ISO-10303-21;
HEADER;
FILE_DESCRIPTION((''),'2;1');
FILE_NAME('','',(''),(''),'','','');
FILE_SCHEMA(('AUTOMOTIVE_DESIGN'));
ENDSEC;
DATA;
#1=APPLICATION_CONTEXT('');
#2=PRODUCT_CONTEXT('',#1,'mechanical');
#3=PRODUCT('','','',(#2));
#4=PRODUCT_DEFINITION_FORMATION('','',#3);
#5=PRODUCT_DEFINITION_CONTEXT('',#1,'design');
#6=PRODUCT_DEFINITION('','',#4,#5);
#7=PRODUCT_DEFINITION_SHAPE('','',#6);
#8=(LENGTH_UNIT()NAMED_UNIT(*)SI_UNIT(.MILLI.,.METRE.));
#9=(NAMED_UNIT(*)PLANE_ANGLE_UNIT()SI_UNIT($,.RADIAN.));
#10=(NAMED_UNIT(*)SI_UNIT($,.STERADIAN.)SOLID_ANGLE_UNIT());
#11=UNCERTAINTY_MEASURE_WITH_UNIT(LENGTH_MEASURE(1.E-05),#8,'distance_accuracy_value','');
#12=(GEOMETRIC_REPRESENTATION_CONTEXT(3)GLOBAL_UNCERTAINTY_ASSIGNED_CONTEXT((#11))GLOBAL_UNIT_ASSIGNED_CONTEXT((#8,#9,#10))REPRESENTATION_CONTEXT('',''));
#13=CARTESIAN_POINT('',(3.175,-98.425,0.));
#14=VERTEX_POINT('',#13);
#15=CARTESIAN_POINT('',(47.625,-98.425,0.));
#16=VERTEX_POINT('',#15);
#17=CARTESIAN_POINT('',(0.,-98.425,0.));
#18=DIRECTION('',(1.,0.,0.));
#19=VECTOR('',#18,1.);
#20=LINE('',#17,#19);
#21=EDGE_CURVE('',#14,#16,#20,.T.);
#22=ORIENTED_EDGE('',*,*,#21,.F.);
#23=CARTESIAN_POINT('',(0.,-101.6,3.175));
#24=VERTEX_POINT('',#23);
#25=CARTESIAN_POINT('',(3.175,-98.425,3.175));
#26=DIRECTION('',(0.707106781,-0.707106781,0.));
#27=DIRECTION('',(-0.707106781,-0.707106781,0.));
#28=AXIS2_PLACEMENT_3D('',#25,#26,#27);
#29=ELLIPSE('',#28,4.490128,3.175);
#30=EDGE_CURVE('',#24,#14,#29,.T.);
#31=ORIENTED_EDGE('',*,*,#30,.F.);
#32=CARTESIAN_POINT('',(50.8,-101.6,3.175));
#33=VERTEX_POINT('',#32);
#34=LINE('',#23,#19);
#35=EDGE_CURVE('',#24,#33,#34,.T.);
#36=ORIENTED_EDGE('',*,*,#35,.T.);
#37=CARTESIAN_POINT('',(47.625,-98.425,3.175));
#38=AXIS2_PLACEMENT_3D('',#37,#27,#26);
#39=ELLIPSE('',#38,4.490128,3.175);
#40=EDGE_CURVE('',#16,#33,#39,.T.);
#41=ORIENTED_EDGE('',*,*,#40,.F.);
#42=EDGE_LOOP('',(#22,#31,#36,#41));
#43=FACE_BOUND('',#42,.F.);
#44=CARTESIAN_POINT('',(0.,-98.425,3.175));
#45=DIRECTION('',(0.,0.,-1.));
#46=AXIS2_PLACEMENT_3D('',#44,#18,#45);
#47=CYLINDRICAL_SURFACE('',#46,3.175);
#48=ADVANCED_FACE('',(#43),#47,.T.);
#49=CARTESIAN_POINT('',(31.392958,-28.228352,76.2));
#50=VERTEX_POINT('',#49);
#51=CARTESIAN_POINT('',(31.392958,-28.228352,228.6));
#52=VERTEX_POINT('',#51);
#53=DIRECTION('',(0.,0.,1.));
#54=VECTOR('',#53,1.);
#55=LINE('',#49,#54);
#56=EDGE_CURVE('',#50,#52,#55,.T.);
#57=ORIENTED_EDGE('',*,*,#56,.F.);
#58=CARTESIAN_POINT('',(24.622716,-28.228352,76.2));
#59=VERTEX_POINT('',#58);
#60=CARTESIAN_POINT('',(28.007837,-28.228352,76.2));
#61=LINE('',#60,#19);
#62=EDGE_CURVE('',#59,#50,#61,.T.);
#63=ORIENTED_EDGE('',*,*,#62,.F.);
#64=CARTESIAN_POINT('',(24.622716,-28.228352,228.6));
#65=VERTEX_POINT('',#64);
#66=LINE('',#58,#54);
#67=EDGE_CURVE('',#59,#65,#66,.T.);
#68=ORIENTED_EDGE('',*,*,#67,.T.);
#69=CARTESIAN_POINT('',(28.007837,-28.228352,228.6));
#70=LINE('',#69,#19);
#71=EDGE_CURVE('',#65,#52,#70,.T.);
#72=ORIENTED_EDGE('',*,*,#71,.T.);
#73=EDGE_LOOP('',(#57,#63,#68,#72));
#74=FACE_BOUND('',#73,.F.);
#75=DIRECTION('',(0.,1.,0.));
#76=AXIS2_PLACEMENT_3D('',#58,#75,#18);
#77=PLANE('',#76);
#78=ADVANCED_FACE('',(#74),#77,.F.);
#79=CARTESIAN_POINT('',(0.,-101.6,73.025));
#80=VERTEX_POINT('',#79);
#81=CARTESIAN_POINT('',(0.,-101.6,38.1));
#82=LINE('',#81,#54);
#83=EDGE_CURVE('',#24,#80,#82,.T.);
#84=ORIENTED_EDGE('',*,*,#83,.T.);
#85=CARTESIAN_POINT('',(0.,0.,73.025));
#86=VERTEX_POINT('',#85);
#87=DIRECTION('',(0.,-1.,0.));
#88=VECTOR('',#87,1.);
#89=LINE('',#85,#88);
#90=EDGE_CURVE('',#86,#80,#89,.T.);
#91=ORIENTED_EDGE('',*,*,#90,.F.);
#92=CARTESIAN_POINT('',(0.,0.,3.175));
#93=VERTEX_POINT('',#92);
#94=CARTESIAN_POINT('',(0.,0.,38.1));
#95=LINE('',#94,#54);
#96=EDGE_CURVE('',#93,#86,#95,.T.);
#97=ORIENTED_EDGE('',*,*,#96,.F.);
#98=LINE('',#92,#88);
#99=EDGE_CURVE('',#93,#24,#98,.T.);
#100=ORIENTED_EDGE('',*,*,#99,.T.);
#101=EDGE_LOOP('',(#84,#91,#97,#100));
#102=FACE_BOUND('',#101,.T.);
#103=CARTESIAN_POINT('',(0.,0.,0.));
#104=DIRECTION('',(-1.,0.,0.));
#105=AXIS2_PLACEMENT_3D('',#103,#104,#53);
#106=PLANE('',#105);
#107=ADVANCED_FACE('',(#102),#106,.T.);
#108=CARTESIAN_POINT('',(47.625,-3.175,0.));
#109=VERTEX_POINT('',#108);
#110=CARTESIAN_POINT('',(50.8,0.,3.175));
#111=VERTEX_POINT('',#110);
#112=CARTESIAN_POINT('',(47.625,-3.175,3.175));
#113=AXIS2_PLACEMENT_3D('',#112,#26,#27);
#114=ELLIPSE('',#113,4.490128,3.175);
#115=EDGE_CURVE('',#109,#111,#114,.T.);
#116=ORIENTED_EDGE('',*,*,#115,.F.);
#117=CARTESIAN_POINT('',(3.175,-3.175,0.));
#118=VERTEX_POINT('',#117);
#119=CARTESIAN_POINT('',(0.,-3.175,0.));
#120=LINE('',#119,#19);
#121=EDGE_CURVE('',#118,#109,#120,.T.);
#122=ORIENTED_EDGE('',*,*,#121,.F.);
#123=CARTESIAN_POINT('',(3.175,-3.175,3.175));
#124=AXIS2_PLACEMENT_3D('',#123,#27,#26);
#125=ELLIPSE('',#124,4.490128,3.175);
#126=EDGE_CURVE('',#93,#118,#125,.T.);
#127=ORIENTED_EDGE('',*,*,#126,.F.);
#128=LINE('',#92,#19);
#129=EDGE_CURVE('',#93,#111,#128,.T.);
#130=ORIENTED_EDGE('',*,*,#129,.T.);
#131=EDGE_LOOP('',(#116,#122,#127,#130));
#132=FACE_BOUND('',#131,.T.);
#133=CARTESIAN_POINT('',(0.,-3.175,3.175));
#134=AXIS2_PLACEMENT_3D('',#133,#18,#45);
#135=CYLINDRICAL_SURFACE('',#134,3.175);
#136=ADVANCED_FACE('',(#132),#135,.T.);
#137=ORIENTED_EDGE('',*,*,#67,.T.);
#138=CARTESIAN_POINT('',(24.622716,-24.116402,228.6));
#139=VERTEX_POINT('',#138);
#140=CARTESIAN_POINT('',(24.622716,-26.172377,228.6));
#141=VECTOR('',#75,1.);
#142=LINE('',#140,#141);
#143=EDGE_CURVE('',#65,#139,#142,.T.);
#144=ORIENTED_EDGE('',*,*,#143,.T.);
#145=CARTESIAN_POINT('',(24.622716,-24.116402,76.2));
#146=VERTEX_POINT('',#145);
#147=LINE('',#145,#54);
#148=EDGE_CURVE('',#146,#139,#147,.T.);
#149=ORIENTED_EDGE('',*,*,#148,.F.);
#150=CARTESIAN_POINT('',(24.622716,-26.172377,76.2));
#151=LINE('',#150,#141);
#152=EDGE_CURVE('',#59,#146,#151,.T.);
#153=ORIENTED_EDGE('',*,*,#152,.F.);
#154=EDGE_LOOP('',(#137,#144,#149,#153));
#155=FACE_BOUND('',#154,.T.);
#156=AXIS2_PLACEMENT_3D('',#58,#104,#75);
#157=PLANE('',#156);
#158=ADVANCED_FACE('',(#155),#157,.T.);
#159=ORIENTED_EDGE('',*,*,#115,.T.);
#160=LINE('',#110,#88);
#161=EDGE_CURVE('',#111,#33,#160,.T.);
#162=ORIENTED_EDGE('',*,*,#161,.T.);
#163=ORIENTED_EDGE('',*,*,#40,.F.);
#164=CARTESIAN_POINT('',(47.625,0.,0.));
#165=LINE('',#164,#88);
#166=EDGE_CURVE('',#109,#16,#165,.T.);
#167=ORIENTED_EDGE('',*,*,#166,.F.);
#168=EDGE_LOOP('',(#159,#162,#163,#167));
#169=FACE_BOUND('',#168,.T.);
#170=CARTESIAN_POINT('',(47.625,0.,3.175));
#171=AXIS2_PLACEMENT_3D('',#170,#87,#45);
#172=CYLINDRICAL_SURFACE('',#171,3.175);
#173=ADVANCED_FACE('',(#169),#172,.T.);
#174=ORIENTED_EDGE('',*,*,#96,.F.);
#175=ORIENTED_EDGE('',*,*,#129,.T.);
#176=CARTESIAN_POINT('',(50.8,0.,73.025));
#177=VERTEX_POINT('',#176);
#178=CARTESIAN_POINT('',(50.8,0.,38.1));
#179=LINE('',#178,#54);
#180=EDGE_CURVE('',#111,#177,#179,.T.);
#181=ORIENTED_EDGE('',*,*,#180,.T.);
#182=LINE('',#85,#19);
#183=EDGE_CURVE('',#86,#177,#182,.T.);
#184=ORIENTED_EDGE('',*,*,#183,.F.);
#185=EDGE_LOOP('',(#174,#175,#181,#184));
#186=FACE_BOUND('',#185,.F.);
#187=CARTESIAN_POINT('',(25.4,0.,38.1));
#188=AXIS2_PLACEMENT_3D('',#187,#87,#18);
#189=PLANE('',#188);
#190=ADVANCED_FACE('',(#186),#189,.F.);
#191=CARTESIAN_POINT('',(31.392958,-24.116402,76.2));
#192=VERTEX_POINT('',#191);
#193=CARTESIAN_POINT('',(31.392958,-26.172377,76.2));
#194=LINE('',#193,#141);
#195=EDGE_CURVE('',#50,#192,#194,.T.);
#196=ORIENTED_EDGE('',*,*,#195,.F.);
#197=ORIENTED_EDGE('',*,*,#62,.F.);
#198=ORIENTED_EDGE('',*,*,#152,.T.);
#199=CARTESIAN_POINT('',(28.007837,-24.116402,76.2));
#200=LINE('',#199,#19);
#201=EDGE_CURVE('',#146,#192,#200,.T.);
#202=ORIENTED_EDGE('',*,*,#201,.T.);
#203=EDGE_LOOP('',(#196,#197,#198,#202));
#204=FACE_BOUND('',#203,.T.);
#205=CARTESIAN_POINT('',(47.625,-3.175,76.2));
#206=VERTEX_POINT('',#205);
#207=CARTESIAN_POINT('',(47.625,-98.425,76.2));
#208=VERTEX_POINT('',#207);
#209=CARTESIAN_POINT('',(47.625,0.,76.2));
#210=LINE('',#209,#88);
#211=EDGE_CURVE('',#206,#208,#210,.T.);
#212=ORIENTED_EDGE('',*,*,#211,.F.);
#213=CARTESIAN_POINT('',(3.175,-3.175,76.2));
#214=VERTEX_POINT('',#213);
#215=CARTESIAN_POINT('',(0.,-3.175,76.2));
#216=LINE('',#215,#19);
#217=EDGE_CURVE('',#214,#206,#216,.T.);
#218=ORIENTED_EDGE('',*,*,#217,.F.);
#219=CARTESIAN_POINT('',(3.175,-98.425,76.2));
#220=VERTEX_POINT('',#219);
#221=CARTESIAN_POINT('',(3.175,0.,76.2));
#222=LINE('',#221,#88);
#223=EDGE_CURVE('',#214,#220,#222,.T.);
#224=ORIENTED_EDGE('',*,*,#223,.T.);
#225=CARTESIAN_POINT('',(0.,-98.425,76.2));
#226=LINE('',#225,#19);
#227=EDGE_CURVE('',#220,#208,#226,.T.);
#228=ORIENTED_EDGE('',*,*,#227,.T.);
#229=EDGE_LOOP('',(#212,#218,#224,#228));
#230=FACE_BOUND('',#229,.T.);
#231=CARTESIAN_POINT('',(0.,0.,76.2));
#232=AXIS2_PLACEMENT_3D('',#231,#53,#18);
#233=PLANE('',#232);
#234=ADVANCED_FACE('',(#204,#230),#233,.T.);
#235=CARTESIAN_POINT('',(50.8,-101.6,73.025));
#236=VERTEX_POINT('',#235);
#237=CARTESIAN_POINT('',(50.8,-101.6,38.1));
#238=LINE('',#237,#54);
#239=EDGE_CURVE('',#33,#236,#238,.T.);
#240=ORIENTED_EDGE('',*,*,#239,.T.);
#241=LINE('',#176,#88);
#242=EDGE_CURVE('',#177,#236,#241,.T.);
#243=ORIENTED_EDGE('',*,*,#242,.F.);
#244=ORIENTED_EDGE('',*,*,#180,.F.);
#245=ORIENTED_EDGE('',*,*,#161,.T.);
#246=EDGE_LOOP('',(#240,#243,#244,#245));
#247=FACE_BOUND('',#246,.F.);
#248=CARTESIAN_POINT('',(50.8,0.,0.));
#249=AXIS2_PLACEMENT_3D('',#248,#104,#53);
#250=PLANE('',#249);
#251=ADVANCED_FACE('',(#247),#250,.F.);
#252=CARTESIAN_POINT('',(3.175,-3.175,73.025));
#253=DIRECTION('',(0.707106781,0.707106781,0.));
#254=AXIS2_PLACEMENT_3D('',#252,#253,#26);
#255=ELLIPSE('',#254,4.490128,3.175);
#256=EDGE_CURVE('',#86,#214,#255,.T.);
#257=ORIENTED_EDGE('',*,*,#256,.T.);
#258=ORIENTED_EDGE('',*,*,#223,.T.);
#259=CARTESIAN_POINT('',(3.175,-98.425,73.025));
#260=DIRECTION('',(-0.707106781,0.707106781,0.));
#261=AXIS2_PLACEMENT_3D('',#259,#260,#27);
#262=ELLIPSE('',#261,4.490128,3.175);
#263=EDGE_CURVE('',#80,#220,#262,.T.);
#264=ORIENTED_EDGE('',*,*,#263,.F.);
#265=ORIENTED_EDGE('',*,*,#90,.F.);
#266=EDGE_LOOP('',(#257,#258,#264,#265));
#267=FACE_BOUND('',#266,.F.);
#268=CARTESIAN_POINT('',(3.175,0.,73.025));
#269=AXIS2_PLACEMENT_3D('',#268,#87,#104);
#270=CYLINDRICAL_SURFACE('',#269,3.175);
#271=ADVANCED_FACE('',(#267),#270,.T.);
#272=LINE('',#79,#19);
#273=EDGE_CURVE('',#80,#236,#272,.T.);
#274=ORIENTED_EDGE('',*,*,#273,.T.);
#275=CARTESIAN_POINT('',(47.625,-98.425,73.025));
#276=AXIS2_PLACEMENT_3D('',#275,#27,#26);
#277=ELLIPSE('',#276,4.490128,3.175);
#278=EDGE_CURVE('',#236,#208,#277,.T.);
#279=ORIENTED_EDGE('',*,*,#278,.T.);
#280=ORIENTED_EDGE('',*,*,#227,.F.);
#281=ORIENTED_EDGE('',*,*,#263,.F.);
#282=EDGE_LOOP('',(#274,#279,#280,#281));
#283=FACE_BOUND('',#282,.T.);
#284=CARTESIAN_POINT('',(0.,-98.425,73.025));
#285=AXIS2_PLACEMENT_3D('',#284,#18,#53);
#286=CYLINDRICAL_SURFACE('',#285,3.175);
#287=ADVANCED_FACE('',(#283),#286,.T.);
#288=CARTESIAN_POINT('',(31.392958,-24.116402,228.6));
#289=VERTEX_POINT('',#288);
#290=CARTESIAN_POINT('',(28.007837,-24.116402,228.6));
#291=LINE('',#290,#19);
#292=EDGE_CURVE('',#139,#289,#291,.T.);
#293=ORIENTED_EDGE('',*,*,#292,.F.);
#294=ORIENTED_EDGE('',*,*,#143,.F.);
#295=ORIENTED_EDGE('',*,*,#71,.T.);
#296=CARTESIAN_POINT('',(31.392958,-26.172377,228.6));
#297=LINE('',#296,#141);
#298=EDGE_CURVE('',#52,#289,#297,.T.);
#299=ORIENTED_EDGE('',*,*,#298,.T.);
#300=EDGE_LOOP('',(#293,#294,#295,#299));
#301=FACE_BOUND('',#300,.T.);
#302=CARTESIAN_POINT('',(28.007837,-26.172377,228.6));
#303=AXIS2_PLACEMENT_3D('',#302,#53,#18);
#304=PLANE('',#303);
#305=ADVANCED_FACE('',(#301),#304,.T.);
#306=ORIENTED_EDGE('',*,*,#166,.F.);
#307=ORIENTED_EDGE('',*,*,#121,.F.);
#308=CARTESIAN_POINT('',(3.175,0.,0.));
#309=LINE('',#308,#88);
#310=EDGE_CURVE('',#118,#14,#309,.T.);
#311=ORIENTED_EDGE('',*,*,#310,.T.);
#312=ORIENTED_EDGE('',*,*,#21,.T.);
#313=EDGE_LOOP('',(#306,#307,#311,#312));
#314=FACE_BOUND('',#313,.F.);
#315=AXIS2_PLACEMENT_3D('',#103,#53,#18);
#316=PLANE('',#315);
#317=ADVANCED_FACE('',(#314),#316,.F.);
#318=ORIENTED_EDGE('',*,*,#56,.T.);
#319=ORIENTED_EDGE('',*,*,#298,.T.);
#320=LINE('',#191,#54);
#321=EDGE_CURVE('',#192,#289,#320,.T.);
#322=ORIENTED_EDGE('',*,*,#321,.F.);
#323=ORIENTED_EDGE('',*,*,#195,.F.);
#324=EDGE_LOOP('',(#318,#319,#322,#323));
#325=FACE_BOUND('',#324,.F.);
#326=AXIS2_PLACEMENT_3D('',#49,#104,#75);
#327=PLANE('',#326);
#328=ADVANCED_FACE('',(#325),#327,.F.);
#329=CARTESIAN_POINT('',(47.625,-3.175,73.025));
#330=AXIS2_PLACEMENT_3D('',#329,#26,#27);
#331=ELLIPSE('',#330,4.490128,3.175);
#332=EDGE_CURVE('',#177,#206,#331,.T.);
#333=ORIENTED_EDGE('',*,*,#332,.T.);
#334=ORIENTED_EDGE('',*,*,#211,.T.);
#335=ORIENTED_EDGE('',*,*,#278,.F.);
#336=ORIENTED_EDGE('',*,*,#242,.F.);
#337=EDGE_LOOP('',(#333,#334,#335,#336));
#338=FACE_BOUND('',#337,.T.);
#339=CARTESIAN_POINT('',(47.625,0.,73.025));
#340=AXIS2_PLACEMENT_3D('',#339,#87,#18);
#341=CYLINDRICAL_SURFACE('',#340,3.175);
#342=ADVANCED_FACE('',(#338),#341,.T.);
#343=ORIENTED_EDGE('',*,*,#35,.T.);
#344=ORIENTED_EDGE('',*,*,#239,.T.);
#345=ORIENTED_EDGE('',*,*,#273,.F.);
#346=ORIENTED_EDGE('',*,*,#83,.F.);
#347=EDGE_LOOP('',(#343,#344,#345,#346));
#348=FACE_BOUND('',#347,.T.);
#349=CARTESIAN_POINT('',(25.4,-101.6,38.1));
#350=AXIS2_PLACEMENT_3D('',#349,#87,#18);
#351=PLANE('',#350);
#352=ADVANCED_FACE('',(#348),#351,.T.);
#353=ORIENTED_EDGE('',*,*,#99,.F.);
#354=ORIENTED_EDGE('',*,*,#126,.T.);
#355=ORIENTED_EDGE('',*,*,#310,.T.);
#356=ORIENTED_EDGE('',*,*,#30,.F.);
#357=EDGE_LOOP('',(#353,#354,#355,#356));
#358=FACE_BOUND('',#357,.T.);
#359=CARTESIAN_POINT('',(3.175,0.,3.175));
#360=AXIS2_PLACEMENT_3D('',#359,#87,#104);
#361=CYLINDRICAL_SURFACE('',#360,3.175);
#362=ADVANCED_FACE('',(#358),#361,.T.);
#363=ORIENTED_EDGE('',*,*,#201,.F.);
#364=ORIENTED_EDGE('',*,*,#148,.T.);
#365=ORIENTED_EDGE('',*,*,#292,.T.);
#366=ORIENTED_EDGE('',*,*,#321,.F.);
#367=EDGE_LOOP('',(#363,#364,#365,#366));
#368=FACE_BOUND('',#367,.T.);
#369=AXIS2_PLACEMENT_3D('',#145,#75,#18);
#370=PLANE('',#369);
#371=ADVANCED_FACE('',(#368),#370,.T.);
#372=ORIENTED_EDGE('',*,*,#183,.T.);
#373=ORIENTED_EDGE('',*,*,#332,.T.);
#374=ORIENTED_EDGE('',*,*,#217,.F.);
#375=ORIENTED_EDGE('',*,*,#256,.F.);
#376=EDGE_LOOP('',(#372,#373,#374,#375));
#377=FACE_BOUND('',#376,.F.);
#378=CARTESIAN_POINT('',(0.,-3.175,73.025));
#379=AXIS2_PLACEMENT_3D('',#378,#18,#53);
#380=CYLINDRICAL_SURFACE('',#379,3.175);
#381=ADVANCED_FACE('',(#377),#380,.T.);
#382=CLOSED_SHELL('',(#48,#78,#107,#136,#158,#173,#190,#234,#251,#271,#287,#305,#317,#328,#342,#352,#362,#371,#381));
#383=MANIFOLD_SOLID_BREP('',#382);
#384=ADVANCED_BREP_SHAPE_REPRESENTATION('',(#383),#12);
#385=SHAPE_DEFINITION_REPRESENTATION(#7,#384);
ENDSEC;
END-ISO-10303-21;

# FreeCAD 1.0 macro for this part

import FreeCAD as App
import Part
import Sketcher

V = App.Vector
Q = App.Units.Quantity


def edges_at(feature, points):
    """Names of the edges that pass closest to the given points."""
    edges = feature.Shape.Edges
    near = lambda p: min(range(len(edges)), key=lambda i: edges[i].distToShape(Part.Vertex(*p))[0])
    return sorted({f"Edge{near(p) + 1}" for p in points})

doc = App.newDocument("Part")
body = doc.addObject("PartDesign::Body", "Body")

sketch1 = body.newObject("Sketcher::SketchObject", "Sketch")
sketch1.AttachmentSupport = (doc.getObject("XZ_Plane"), [""])
sketch1.MapMode = "FlatFace"
sketch1.addGeometry(Part.LineSegment(V(0, 76, 0), V(0, 0, 0)), False)
sketch1.addGeometry(Part.LineSegment(V(0, 0, 0), V(51, 0, 0)), False)
sketch1.addGeometry(Part.LineSegment(V(51, 0, 0), V(51, 76, 0)), False)
sketch1.addGeometry(Part.LineSegment(V(51, 76, 0), V(0, 76, 0)), False)
sketch1.addConstraint(Sketcher.Constraint("Coincident", 0, 2, 1, 1))
sketch1.addConstraint(Sketcher.Constraint("Coincident", 1, 2, 2, 1))
sketch1.addConstraint(Sketcher.Constraint("Coincident", 2, 2, 3, 1))
sketch1.addConstraint(Sketcher.Constraint("Coincident", 3, 2, 0, 1))
sketch1.addConstraint(Sketcher.Constraint("Vertical", 0))
sketch1.addConstraint(Sketcher.Constraint("Horizontal", 1))
sketch1.addConstraint(Sketcher.Constraint("Vertical", 2))
sketch1.addConstraint(Sketcher.Constraint("Horizontal", 3))
sketch1.addConstraint(Sketcher.Constraint("Coincident", 0, 2, -1, 1))
sketch1.addConstraint(Sketcher.Constraint("DistanceX", 1, 1, 1, 2, Q("2 in")))
sketch1.addConstraint(Sketcher.Constraint("DistanceY", 0, 2, 0, 1, Q("3 in")))
pad1 = body.newObject("PartDesign::Pad", "Pad")
pad1.Profile = sketch1
pad1.Length = Q("4 in")
doc.recompute()

fillet = body.newObject("PartDesign::Fillet", "Fillet")
fillet.Base = (pad1, edges_at(pad1, [
    (50.8, -50.8, 76.2),
    (0, -50.8, 76.2),
    (25.4, 0, 76.2),
    (25.4, -101.6, 76.2),
    (0, -50.8, 0),
    (50.8, -50.8, 0),
    (25.4, 0, 0),
    (25.4, -101.6, 0),
]))
fillet.Radius = Q("0.125 in")

sketch2 = body.newObject("Sketcher::SketchObject", "Sketch001")
sketch2.AttachmentSupport = (doc.getObject("XY_Plane"), [""])
sketch2.MapMode = "FlatFace"
sketch2.AttachmentOffset = App.Placement(V(0, 0, 3 * 25.4), App.Rotation())
sketch2.addGeometry(Part.LineSegment(V(24.6, -24.1, 0), V(24.6, -28.2, 0)), False)
sketch2.addGeometry(Part.LineSegment(V(24.6, -28.2, 0), V(31.4, -28.2, 0)), False)
sketch2.addGeometry(Part.LineSegment(V(31.4, -28.2, 0), V(31.4, -24.1, 0)), False)
sketch2.addGeometry(Part.LineSegment(V(31.4, -24.1, 0), V(24.6, -24.1, 0)), False)
sketch2.addConstraint(Sketcher.Constraint("Coincident", 0, 2, 1, 1))
sketch2.addConstraint(Sketcher.Constraint("Coincident", 1, 2, 2, 1))
sketch2.addConstraint(Sketcher.Constraint("Coincident", 2, 2, 3, 1))
sketch2.addConstraint(Sketcher.Constraint("Coincident", 3, 2, 0, 1))
sketch2.addConstraint(Sketcher.Constraint("Vertical", 0))
sketch2.addConstraint(Sketcher.Constraint("Horizontal", 1))
sketch2.addConstraint(Sketcher.Constraint("Vertical", 2))
sketch2.addConstraint(Sketcher.Constraint("Horizontal", 3))
sketch2.addConstraint(Sketcher.Constraint("DistanceX", 1, 1, 1, 2, 6.770242))
sketch2.addConstraint(Sketcher.Constraint("DistanceY", 0, 2, 0, 1, 4.11195))
sketch2.addConstraint(Sketcher.Constraint("DistanceX", -1, 1, 1, 2, 31.392958))
sketch2.addConstraint(Sketcher.Constraint("DistanceY", 0, 2, -1, 1, 28.228352))
pad2 = body.newObject("PartDesign::Pad", "Pad001")
pad2.Profile = sketch2
pad2.Length = Q("6 in")

doc.recompute()
